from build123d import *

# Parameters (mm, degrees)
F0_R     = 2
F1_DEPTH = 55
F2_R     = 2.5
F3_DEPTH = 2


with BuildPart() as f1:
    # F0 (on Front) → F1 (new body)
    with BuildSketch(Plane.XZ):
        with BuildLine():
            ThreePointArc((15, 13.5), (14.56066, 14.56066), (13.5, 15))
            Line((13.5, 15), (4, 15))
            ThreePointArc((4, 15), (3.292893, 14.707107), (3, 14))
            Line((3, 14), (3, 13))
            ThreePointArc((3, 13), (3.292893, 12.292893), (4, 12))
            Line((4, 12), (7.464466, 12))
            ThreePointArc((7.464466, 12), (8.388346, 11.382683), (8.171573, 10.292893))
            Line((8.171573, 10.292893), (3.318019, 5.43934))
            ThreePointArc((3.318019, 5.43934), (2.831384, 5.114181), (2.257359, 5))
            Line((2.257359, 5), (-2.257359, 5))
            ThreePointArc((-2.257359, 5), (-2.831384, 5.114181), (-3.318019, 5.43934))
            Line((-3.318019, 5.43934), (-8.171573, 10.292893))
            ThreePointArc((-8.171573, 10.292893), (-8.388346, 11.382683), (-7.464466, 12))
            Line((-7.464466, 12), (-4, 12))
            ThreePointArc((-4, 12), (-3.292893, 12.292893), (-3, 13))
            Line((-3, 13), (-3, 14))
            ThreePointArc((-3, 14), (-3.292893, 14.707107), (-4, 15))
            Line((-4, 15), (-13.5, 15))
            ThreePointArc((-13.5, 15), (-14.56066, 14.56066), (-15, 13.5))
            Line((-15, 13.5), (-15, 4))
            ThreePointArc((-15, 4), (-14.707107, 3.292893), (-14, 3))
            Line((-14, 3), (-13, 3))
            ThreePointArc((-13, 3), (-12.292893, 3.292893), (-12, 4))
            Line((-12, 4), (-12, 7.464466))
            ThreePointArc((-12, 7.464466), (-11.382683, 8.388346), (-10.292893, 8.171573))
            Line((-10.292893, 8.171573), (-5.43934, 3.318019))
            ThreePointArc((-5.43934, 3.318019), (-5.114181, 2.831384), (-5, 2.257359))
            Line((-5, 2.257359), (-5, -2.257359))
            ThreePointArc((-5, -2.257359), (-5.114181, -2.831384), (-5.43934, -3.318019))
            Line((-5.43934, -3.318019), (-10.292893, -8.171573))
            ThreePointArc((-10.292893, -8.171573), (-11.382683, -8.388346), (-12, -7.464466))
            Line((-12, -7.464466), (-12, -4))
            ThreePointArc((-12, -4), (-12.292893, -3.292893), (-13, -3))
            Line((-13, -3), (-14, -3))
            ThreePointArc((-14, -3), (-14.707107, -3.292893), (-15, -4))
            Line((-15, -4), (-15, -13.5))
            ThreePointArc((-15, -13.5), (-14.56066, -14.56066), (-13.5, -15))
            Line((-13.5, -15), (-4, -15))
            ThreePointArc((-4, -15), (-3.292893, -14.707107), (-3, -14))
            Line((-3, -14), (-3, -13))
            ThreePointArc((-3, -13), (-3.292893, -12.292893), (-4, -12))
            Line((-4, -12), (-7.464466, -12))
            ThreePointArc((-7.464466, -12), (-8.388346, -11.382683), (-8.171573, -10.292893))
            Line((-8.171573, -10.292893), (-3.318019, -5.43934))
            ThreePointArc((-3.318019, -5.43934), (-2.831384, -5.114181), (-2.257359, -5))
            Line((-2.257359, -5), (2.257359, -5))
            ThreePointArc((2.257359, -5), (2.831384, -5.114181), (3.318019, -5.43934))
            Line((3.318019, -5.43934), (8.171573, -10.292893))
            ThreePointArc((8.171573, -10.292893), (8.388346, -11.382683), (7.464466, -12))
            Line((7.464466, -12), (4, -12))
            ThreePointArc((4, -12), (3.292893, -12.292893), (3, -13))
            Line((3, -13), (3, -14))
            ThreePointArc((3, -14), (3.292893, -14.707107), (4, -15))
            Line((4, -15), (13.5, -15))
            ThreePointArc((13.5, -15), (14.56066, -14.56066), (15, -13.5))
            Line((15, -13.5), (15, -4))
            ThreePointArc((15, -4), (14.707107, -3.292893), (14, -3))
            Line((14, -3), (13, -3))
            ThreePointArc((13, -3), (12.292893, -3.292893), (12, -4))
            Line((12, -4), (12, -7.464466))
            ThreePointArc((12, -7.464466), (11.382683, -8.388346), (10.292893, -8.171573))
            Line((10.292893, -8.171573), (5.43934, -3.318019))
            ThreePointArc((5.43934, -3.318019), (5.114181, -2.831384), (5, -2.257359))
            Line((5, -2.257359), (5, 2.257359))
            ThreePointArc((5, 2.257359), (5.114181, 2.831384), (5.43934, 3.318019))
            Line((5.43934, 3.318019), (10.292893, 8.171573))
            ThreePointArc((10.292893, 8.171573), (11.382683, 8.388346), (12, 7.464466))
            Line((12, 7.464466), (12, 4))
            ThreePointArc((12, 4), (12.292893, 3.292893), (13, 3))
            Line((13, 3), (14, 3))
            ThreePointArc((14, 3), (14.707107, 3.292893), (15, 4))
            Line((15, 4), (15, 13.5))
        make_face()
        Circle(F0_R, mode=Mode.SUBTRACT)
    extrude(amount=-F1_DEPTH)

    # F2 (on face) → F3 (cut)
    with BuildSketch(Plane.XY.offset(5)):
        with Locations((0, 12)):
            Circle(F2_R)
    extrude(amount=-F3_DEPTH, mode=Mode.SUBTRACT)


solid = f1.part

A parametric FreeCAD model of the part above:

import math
import FreeCAD as App
import Part
import Sketcher
Q = App.Units.Quantity

doc = App.newDocument("Part")
body = doc.addObject("PartDesign::Body", "Body")

# Sketch on XZ plane
sketch1 = body.newObject("Sketcher::SketchObject", "Sketch")
sketch1.AttachmentSupport = (doc.getObject("XZ_Plane"), [""])
sketch1.MapMode = "FlatFace"
sketch1.addGeometry(Part.ArcOfCircle(Part.Circle(App.Vector(13.5, 13.5, 0), App.Vector(0, 0, 1), 1.5), math.radians(0), math.radians(90)), False)
sketch1.addGeometry(Part.LineSegment(App.Vector(13.5, 15, 0), App.Vector(4, 15, 0)), False)
sketch1.addGeometry(Part.ArcOfCircle(Part.Circle(App.Vector(4, 14, 0), App.Vector(0, 0, 1), 1), math.radians(90), math.radians(180)), False)
sketch1.addGeometry(Part.LineSegment(App.Vector(3, 14, 0), App.Vector(3, 13, 0)), False)
sketch1.addGeometry(Part.ArcOfCircle(Part.Circle(App.Vector(4, 13, 0), App.Vector(0, 0, 1), 1), math.radians(180), math.radians(270)), False)
sketch1.addGeometry(Part.LineSegment(App.Vector(4, 12, 0), App.Vector(7.5, 12, 0)), False)
sketch1.addGeometry(Part.ArcOfCircle(Part.Circle(App.Vector(7.5, 11, 0), App.Vector(0, 0, 1), 1), math.radians(-45), math.radians(90)), False)
sketch1.addGeometry(Part.LineSegment(App.Vector(8.2, 10.3, 0), App.Vector(3.3, 5.4, 0)), False)
sketch1.addGeometry(Part.ArcOfCircle(Part.Circle(App.Vector(2.3, 6.5, 0), App.Vector(0, 0, 1), 1.5), math.radians(-90), math.radians(-45)), False)
sketch1.addGeometry(Part.LineSegment(App.Vector(2.3, 5, 0), App.Vector(-2.3, 5, 0)), False)
sketch1.addGeometry(Part.ArcOfCircle(Part.Circle(App.Vector(-2.3, 6.5, 0), App.Vector(0, 0, 1), 1.5), math.radians(-135), math.radians(-90)), False)
sketch1.addGeometry(Part.LineSegment(App.Vector(-3.3, 5.4, 0), App.Vector(-8.2, 10.3, 0)), False)
sketch1.addGeometry(Part.ArcOfCircle(Part.Circle(App.Vector(-7.5, 11, 0), App.Vector(0, 0, 1), 1), math.radians(90), math.radians(225)), False)
sketch1.addGeometry(Part.LineSegment(App.Vector(-7.5, 12, 0), App.Vector(-4, 12, 0)), False)
sketch1.addGeometry(Part.ArcOfCircle(Part.Circle(App.Vector(-4, 13, 0), App.Vector(0, 0, 1), 1), math.radians(-90), math.radians(0)), False)
sketch1.addGeometry(Part.LineSegment(App.Vector(-3, 13, 0), App.Vector(-3, 14, 0)), False)
sketch1.addGeometry(Part.ArcOfCircle(Part.Circle(App.Vector(-4, 14, 0), App.Vector(0, 0, 1), 1), math.radians(0), math.radians(90)), False)
sketch1.addGeometry(Part.LineSegment(App.Vector(-4, 15, 0), App.Vector(-13.5, 15, 0)), False)
sketch1.addGeometry(Part.ArcOfCircle(Part.Circle(App.Vector(-13.5, 13.5, 0), App.Vector(0, 0, 1), 1.5), math.radians(90), math.radians(180)), False)
sketch1.addGeometry(Part.LineSegment(App.Vector(-15, 13.5, 0), App.Vector(-15, 4, 0)), False)
sketch1.addGeometry(Part.ArcOfCircle(Part.Circle(App.Vector(-14, 4, 0), App.Vector(0, 0, 1), 1), math.radians(180), math.radians(270)), False)
sketch1.addGeometry(Part.LineSegment(App.Vector(-14, 3, 0), App.Vector(-13, 3, 0)), False)
sketch1.addGeometry(Part.ArcOfCircle(Part.Circle(App.Vector(-13, 4, 0), App.Vector(0, 0, 1), 1), math.radians(-90), math.radians(0)), False)
sketch1.addGeometry(Part.LineSegment(App.Vector(-12, 4, 0), App.Vector(-12, 7.5, 0)), False)
sketch1.addGeometry(Part.ArcOfCircle(Part.Circle(App.Vector(-11, 7.5, 0), App.Vector(0, 0, 1), 1), math.radians(45), math.radians(180)), False)
sketch1.addGeometry(Part.LineSegment(App.Vector(-10.3, 8.2, 0), App.Vector(-5.4, 3.3, 0)), False)
sketch1.addGeometry(Part.ArcOfCircle(Part.Circle(App.Vector(-6.5, 2.3, 0), App.Vector(0, 0, 1), 1.5), math.radians(0), math.radians(45)), False)
sketch1.addGeometry(Part.LineSegment(App.Vector(-5, 2.3, 0), App.Vector(-5, -2.3, 0)), False)
sketch1.addGeometry(Part.ArcOfCircle(Part.Circle(App.Vector(-6.5, -2.3, 0), App.Vector(0, 0, 1), 1.5), math.radians(-45), math.radians(0)), False)
sketch1.addGeometry(Part.LineSegment(App.Vector(-5.4, -3.3, 0), App.Vector(-10.3, -8.2, 0)), False)
sketch1.addGeometry(Part.ArcOfCircle(Part.Circle(App.Vector(-11, -7.5, 0), App.Vector(0, 0, 1), 1), math.radians(180), math.radians(315)), False)
sketch1.addGeometry(Part.LineSegment(App.Vector(-12, -7.5, 0), App.Vector(-12, -4, 0)), False)
sketch1.addGeometry(Part.ArcOfCircle(Part.Circle(App.Vector(-13, -4, 0), App.Vector(0, 0, 1), 1), math.radians(0), math.radians(90)), False)
sketch1.addGeometry(Part.LineSegment(App.Vector(-13, -3, 0), App.Vector(-14, -3, 0)), False)
sketch1.addGeometry(Part.ArcOfCircle(Part.Circle(App.Vector(-14, -4, 0), App.Vector(0, 0, 1), 1), math.radians(90), math.radians(180)), False)
sketch1.addGeometry(Part.LineSegment(App.Vector(-15, -4, 0), App.Vector(-15, -13.5, 0)), False)
sketch1.addGeometry(Part.ArcOfCircle(Part.Circle(App.Vector(-13.5, -13.5, 0), App.Vector(0, 0, 1), 1.5), math.radians(-180), math.radians(-90)), False)
sketch1.addGeometry(Part.LineSegment(App.Vector(-13.5, -15, 0), App.Vector(-4, -15, 0)), False)
sketch1.addGeometry(Part.ArcOfCircle(Part.Circle(App.Vector(-4, -14, 0), App.Vector(0, 0, 1), 1), math.radians(-90), math.radians(0)), False)
sketch1.addGeometry(Part.LineSegment(App.Vector(-3, -14, 0), App.Vector(-3, -13, 0)), False)
sketch1.addGeometry(Part.ArcOfCircle(Part.Circle(App.Vector(-4, -13, 0), App.Vector(0, 0, 1), 1), math.radians(0), math.radians(90)), False)
sketch1.addGeometry(Part.LineSegment(App.Vector(-4, -12, 0), App.Vector(-7.5, -12, 0)), False)
sketch1.addGeometry(Part.ArcOfCircle(Part.Circle(App.Vector(-7.5, -11, 0), App.Vector(0, 0, 1), 1), math.radians(135), math.radians(270)), False)
sketch1.addGeometry(Part.LineSegment(App.Vector(-8.2, -10.3, 0), App.Vector(-3.3, -5.4, 0)), False)
sketch1.addGeometry(Part.ArcOfCircle(Part.Circle(App.Vector(-2.3, -6.5, 0), App.Vector(0, 0, 1), 1.5), math.radians(90), math.radians(135)), False)
sketch1.addGeometry(Part.LineSegment(App.Vector(-2.3, -5, 0), App.Vector(2.3, -5, 0)), False)
sketch1.addGeometry(Part.ArcOfCircle(Part.Circle(App.Vector(2.3, -6.5, 0), App.Vector(0, 0, 1), 1.5), math.radians(45), math.radians(90)), False)
sketch1.addGeometry(Part.LineSegment(App.Vector(3.3, -5.4, 0), App.Vector(8.2, -10.3, 0)), False)
sketch1.addGeometry(Part.ArcOfCircle(Part.Circle(App.Vector(7.5, -11, 0), App.Vector(0, 0, 1), 1), math.radians(-90), math.radians(45)), False)
sketch1.addGeometry(Part.LineSegment(App.Vector(7.5, -12, 0), App.Vector(4, -12, 0)), False)
sketch1.addGeometry(Part.ArcOfCircle(Part.Circle(App.Vector(4, -13, 0), App.Vector(0, 0, 1), 1), math.radians(90), math.radians(180)), False)
sketch1.addGeometry(Part.LineSegment(App.Vector(3, -13, 0), App.Vector(3, -14, 0)), False)
sketch1.addGeometry(Part.ArcOfCircle(Part.Circle(App.Vector(4, -14, 0), App.Vector(0, 0, 1), 1), math.radians(180), math.radians(270)), False)
sketch1.addGeometry(Part.LineSegment(App.Vector(4, -15, 0), App.Vector(13.5, -15, 0)), False)
sketch1.addGeometry(Part.ArcOfCircle(Part.Circle(App.Vector(13.5, -13.5, 0), App.Vector(0, 0, 1), 1.5), math.radians(-90), math.radians(0)), False)
sketch1.addGeometry(Part.LineSegment(App.Vector(15, -13.5, 0), App.Vector(15, -4, 0)), False)
sketch1.addGeometry(Part.ArcOfCircle(Part.Circle(App.Vector(14, -4, 0), App.Vector(0, 0, 1), 1), math.radians(0), math.radians(90)), False)
sketch1.addGeometry(Part.LineSegment(App.Vector(14, -3, 0), App.Vector(13, -3, 0)), False)
sketch1.addGeometry(Part.ArcOfCircle(Part.Circle(App.Vector(13, -4, 0), App.Vector(0, 0, 1), 1), math.radians(90), math.radians(180)), False)
sketch1.addGeometry(Part.LineSegment(App.Vector(12, -4, 0), App.Vector(12, -7.5, 0)), False)
sketch1.addGeometry(Part.ArcOfCircle(Part.Circle(App.Vector(11, -7.5, 0), App.Vector(0, 0, 1), 1), math.radians(-135), math.radians(0)), False)
sketch1.addGeometry(Part.LineSegment(App.Vector(10.3, -8.2, 0), App.Vector(5.4, -3.3, 0)), False)
sketch1.addGeometry(Part.ArcOfCircle(Part.Circle(App.Vector(6.5, -2.3, 0), App.Vector(0, 0, 1), 1.5), math.radians(-180), math.radians(-135)), False)
sketch1.addGeometry(Part.LineSegment(App.Vector(5, -2.3, 0), App.Vector(5, 2.3, 0)), False)
sketch1.addGeometry(Part.ArcOfCircle(Part.Circle(App.Vector(6.5, 2.3, 0), App.Vector(0, 0, 1), 1.5), math.radians(135), math.radians(180)), False)
sketch1.addGeometry(Part.LineSegment(App.Vector(5.4, 3.3, 0), App.Vector(10.3, 8.2, 0)), False)
sketch1.addGeometry(Part.ArcOfCircle(Part.Circle(App.Vector(11, 7.5, 0), App.Vector(0, 0, 1), 1), math.radians(0), math.radians(135)), False)
sketch1.addGeometry(Part.LineSegment(App.Vector(12, 7.5, 0), App.Vector(12, 4, 0)), False)
sketch1.addGeometry(Part.ArcOfCircle(Part.Circle(App.Vector(13, 4, 0), App.Vector(0, 0, 1), 1), math.radians(180), math.radians(270)), False)
sketch1.addGeometry(Part.LineSegment(App.Vector(13, 3, 0), App.Vector(14, 3, 0)), False)
sketch1.addGeometry(Part.ArcOfCircle(Part.Circle(App.Vector(14, 4, 0), App.Vector(0, 0, 1), 1), math.radians(-90), math.radians(0)), False)
sketch1.addGeometry(Part.LineSegment(App.Vector(15, 4, 0), App.Vector(15, 13.5, 0)), False)
sketch1.addGeometry(Part.Circle(App.Vector(0, 0, 0), App.Vector(0, 0, 1), 2), False)
sketch1.addConstraint(Sketcher.Constraint("Tangent", 0, 2, 1, 1))
sketch1.addConstraint(Sketcher.Constraint("Tangent", 1, 2, 2, 1))
sketch1.addConstraint(Sketcher.Constraint("Tangent", 2, 2, 3, 1))
sketch1.addConstraint(Sketcher.Constraint("Tangent", 3, 2, 4, 1))
sketch1.addConstraint(Sketcher.Constraint("Tangent", 4, 2, 5, 1))
sketch1.addConstraint(Sketcher.Constraint("Tangent", 5, 2, 6, 2))
sketch1.addConstraint(Sketcher.Constraint("Tangent", 6, 1, 7, 1))
sketch1.addConstraint(Sketcher.Constraint("Tangent", 7, 2, 8, 2))
sketch1.addConstraint(Sketcher.Constraint("Tangent", 8, 1, 9, 1))
sketch1.addConstraint(Sketcher.Constraint("Tangent", 9, 2, 10, 2))
sketch1.addConstraint(Sketcher.Constraint("Tangent", 10, 1, 11, 1))
sketch1.addConstraint(Sketcher.Constraint("Tangent", 11, 2, 12, 2))
sketch1.addConstraint(Sketcher.Constraint("Tangent", 12, 1, 13, 1))
sketch1.addConstraint(Sketcher.Constraint("Tangent", 13, 2, 14, 1))
sketch1.addConstraint(Sketcher.Constraint("Tangent", 14, 2, 15, 1))
sketch1.addConstraint(Sketcher.Constraint("Tangent", 15, 2, 16, 1))
sketch1.addConstraint(Sketcher.Constraint("Tangent", 16, 2, 17, 1))
sketch1.addConstraint(Sketcher.Constraint("Tangent", 17, 2, 18, 1))
sketch1.addConstraint(Sketcher.Constraint("Tangent", 18, 2, 19, 1))
sketch1.addConstraint(Sketcher.Constraint("Tangent", 19, 2, 20, 1))
sketch1.addConstraint(Sketcher.Constraint("Tangent", 20, 2, 21, 1))
sketch1.addConstraint(Sketcher.Constraint("Tangent", 21, 2, 22, 1))
sketch1.addConstraint(Sketcher.Constraint("Tangent", 22, 2, 23, 1))
sketch1.addConstraint(Sketcher.Constraint("Tangent", 23, 2, 24, 2))
sketch1.addConstraint(Sketcher.Constraint("Tangent", 24, 1, 25, 1))
sketch1.addConstraint(Sketcher.Constraint("Tangent", 25, 2, 26, 2))
sketch1.addConstraint(Sketcher.Constraint("Tangent", 26, 1, 27, 1))
sketch1.addConstraint(Sketcher.Constraint("Tangent", 27, 2, 28, 2))
sketch1.addConstraint(Sketcher.Constraint("Tangent", 28, 1, 29, 1))
sketch1.addConstraint(Sketcher.Constraint("Tangent", 29, 2, 30, 2))
sketch1.addConstraint(Sketcher.Constraint("Tangent", 30, 1, 31, 1))
sketch1.addConstraint(Sketcher.Constraint("Tangent", 31, 2, 32, 1))
sketch1.addConstraint(Sketcher.Constraint("Tangent", 32, 2, 33, 1))
sketch1.addConstraint(Sketcher.Constraint("Tangent", 33, 2, 34, 1))
sketch1.addConstraint(Sketcher.Constraint("Tangent", 34, 2, 35, 1))
sketch1.addConstraint(Sketcher.Constraint("Tangent", 35, 2, 36, 1))
sketch1.addConstraint(Sketcher.Constraint("Tangent", 36, 2, 37, 1))
sketch1.addConstraint(Sketcher.Constraint("Tangent", 37, 2, 38, 1))
sketch1.addConstraint(Sketcher.Constraint("Tangent", 38, 2, 39, 1))
sketch1.addConstraint(Sketcher.Constraint("Tangent", 39, 2, 40, 1))
sketch1.addConstraint(Sketcher.Constraint("Tangent", 40, 2, 41, 1))
sketch1.addConstraint(Sketcher.Constraint("Tangent", 41, 2, 42, 2))
sketch1.addConstraint(Sketcher.Constraint("Tangent", 42, 1, 43, 1))
sketch1.addConstraint(Sketcher.Constraint("Tangent", 43, 2, 44, 2))
sketch1.addConstraint(Sketcher.Constraint("Tangent", 44, 1, 45, 1))
sketch1.addConstraint(Sketcher.Constraint("Tangent", 45, 2, 46, 2))
sketch1.addConstraint(Sketcher.Constraint("Tangent", 46, 1, 47, 1))
sketch1.addConstraint(Sketcher.Constraint("Tangent", 47, 2, 48, 2))
sketch1.addConstraint(Sketcher.Constraint("Tangent", 48, 1, 49, 1))
sketch1.addConstraint(Sketcher.Constraint("Tangent", 49, 2, 50, 1))
sketch1.addConstraint(Sketcher.Constraint("Tangent", 50, 2, 51, 1))
sketch1.addConstraint(Sketcher.Constraint("Tangent", 51, 2, 52, 1))
sketch1.addConstraint(Sketcher.Constraint("Tangent", 52, 2, 53, 1))
sketch1.addConstraint(Sketcher.Constraint("Tangent", 53, 2, 54, 1))
sketch1.addConstraint(Sketcher.Constraint("Tangent", 54, 2, 55, 1))
sketch1.addConstraint(Sketcher.Constraint("Tangent", 55, 2, 56, 1))
sketch1.addConstraint(Sketcher.Constraint("Tangent", 56, 2, 57, 1))
sketch1.addConstraint(Sketcher.Constraint("Tangent", 57, 2, 58, 1))
sketch1.addConstraint(Sketcher.Constraint("Tangent", 58, 2, 59, 1))
sketch1.addConstraint(Sketcher.Constraint("Tangent", 59, 2, 60, 2))
sketch1.addConstraint(Sketcher.Constraint("Tangent", 60, 1, 61, 1))
sketch1.addConstraint(Sketcher.Constraint("Tangent", 61, 2, 62, 2))
sketch1.addConstraint(Sketcher.Constraint("Tangent", 62, 1, 63, 1))
sketch1.addConstraint(Sketcher.Constraint("Tangent", 63, 2, 64, 2))
sketch1.addConstraint(Sketcher.Constraint("Tangent", 64, 1, 65, 1))
sketch1.addConstraint(Sketcher.Constraint("Tangent", 65, 2, 66, 2))
sketch1.addConstraint(Sketcher.Constraint("Tangent", 66, 1, 67, 1))
sketch1.addConstraint(Sketcher.Constraint("Tangent", 67, 2, 68, 1))
sketch1.addConstraint(Sketcher.Constraint("Tangent", 68, 2, 69, 1))
sketch1.addConstraint(Sketcher.Constraint("Tangent", 69, 2, 70, 1))
sketch1.addConstraint(Sketcher.Constraint("Tangent", 70, 2, 71, 1))
sketch1.addConstraint(Sketcher.Constraint("Tangent", 71, 2, 0, 1))
sketch1.addConstraint(Sketcher.Constraint("Horizontal", 1))
sketch1.addConstraint(Sketcher.Constraint("Vertical", 3))
sketch1.addConstraint(Sketcher.Constraint("Horizontal", 5))
sketch1.addConstraint(Sketcher.Constraint("Horizontal", 9))
sketch1.addConstraint(Sketcher.Constraint("Horizontal", 13))
sketch1.addConstraint(Sketcher.Constraint("Vertical", 15))
sketch1.addConstraint(Sketcher.Constraint("Horizontal", 17))
sketch1.addConstraint(Sketcher.Constraint("Vertical", 19))
sketch1.addConstraint(Sketcher.Constraint("Horizontal", 21))
sketch1.addConstraint(Sketcher.Constraint("Vertical", 23))
sketch1.addConstraint(Sketcher.Constraint("Vertical", 27))
sketch1.addConstraint(Sketcher.Constraint("Vertical", 31))
sketch1.addConstraint(Sketcher.Constraint("Horizontal", 33))
sketch1.addConstraint(Sketcher.Constraint("Vertical", 35))
sketch1.addConstraint(Sketcher.Constraint("Horizontal", 37))
sketch1.addConstraint(Sketcher.Constraint("Vertical", 39))
sketch1.addConstraint(Sketcher.Constraint("Horizontal", 41))
sketch1.addConstraint(Sketcher.Constraint("Horizontal", 45))
sketch1.addConstraint(Sketcher.Constraint("Horizontal", 49))
sketch1.addConstraint(Sketcher.Constraint("Vertical", 51))
sketch1.addConstraint(Sketcher.Constraint("Horizontal", 53))
sketch1.addConstraint(Sketcher.Constraint("Vertical", 55))
sketch1.addConstraint(Sketcher.Constraint("Horizontal", 57))
sketch1.addConstraint(Sketcher.Constraint("Vertical", 59))
sketch1.addConstraint(Sketcher.Constraint("Vertical", 63))
sketch1.addConstraint(Sketcher.Constraint("Vertical", 67))
sketch1.addConstraint(Sketcher.Constraint("Horizontal", 69))
sketch1.addConstraint(Sketcher.Constraint("Vertical", 71))
sketch1.addConstraint(Sketcher.Constraint("Coincident", 72, 3, -1, 1))
sketch1.addConstraint(Sketcher.Constraint("Equal", 2, 4))
sketch1.addConstraint(Sketcher.Constraint("Equal", 4, 6))
sketch1.addConstraint(Sketcher.Constraint("Equal", 0, 8))
sketch1.addConstraint(Sketcher.Constraint("Equal", 8, 10))
sketch1.addConstraint(Sketcher.Constraint("Equal", 6, 12))
sketch1.addConstraint(Sketcher.Constraint("Equal", 12, 14))
sketch1.addConstraint(Sketcher.Constraint("Equal", 14, 16))
sketch1.addConstraint(Sketcher.Constraint("Equal", 10, 18))
sketch1.addConstraint(Sketcher.Constraint("Equal", 16, 20))
sketch1.addConstraint(Sketcher.Constraint("Equal", 20, 22))
sketch1.addConstraint(Sketcher.Constraint("Equal", 22, 24))
sketch1.addConstraint(Sketcher.Constraint("Equal", 18, 26))
sketch1.addConstraint(Sketcher.Constraint("Equal", 26, 28))
sketch1.addConstraint(Sketcher.Constraint("Equal", 24, 30))
sketch1.addConstraint(Sketcher.Constraint("Equal", 30, 32))
sketch1.addConstraint(Sketcher.Constraint("Equal", 32, 34))
sketch1.addConstraint(Sketcher.Constraint("Equal", 28, 36))
sketch1.addConstraint(Sketcher.Constraint("Equal", 34, 38))
sketch1.addConstraint(Sketcher.Constraint("Equal", 38, 40))
sketch1.addConstraint(Sketcher.Constraint("Equal", 40, 42))
sketch1.addConstraint(Sketcher.Constraint("Equal", 36, 44))
sketch1.addConstraint(Sketcher.Constraint("Equal", 44, 46))
sketch1.addConstraint(Sketcher.Constraint("Equal", 42, 48))
sketch1.addConstraint(Sketcher.Constraint("Equal", 48, 50))
sketch1.addConstraint(Sketcher.Constraint("Equal", 50, 52))
sketch1.addConstraint(Sketcher.Constraint("Equal", 46, 54))
sketch1.addConstraint(Sketcher.Constraint("Equal", 52, 56))
sketch1.addConstraint(Sketcher.Constraint("Equal", 56, 58))
sketch1.addConstraint(Sketcher.Constraint("Equal", 58, 60))
sketch1.addConstraint(Sketcher.Constraint("Equal", 54, 62))
sketch1.addConstraint(Sketcher.Constraint("Equal", 62, 64))
sketch1.addConstraint(Sketcher.Constraint("Equal", 60, 66))
sketch1.addConstraint(Sketcher.Constraint("Equal", 66, 68))
sketch1.addConstraint(Sketcher.Constraint("Equal", 68, 70))
sketch1.addConstraint(Sketcher.Constraint("Symmetric", 0, 3, 36, 3, -1, 1))
sketch1.addConstraint(Sketcher.Constraint("Symmetric", 4, 3, 40, 3, -1, 1))
sketch1.addConstraint(Sketcher.Constraint("Symmetric", 8, 3, 44, 3, -1, 1))
sketch1.addConstraint(Sketcher.Constraint("Symmetric", 12, 3, 48, 3, -1, 1))
sketch1.addConstraint(Sketcher.Constraint("Symmetric", 16, 3, 52, 3, -1, 1))
sketch1.addConstraint(Sketcher.Constraint("Symmetric", 20, 3, 56, 3, -1, 1))
sketch1.addConstraint(Sketcher.Constraint("Symmetric", 24, 3, 60, 3, -1, 1))
sketch1.addConstraint(Sketcher.Constraint("Symmetric", 26, 3, 62, 3, -1, 1))
sketch1.addConstraint(Sketcher.Constraint("Symmetric", 30, 3, 66, 3, -1, 1))
sketch1.addConstraint(Sketcher.Constraint("Symmetric", 6, 3, 12, 3, -2))
sketch1.addConstraint(Sketcher.Constraint("Symmetric", 2, 3, 16, 3, -2))
sketch1.addConstraint(Sketcher.Constraint("Symmetric", 34, 3, 56, 3, -2))
sketch1.addConstraint(Sketcher.Constraint("Symmetric", 30, 3, 60, 3, -2))
sketch1.addConstraint(Sketcher.Constraint("Symmetric", 43, 2, 46, 1, -2))
sketch1.addConstraint(Sketcher.Constraint("Perpendicular", 7, 11))
sketch1.addConstraint(Sketcher.Constraint("Parallel", 11, 25))
sketch1.addConstraint(Sketcher.Constraint("Perpendicular", 25, 29))
sketch1.addConstraint(Sketcher.Constraint("Perpendicular", 43, 47))
sketch1.addConstraint(Sketcher.Constraint("Perpendicular", 61, 65))
sketch1.addConstraint(Sketcher.Constraint("Horizontal", 22, 3, 68, 3))
sketch1.addConstraint(Sketcher.Constraint("Equal", 69, 3))
sketch1.addConstraint(Sketcher.Constraint("Equal", 53, 19))
sketch1.addConstraint(Sketcher.Constraint("Equal", 49, 23))
sketch1.addConstraint(Sketcher.Constraint("Equal", 45, 27))
sketch1.addConstraint(Sketcher.Constraint("Equal", 11, 25))
sketch1.addConstraint(Sketcher.Constraint("Diameter", 72, Q("4 mm")))
sketch1.addConstraint(Sketcher.Constraint("Radius", 2, Q("0.999999 mm")))
sketch1.addConstraint(Sketcher.Constraint("Radius", 0, Q("1.500001 mm")))
sketch1.addConstraint(Sketcher.Constraint("DistanceX", 21, 1, 21, 2, Q("1 mm")))
sketch1.addConstraint(Sketcher.Constraint("DistanceX", 1, 2, 1, 1, Q("9.5 mm")))
sketch1.addConstraint(Sketcher.Constraint("DistanceX", -1, 1, 2, 3, Q("3.999999 mm")))
sketch1.addConstraint(Sketcher.Constraint("DistanceY", -1, 1, 8, 1, Q("5 mm")))
sketch1.addConstraint(Sketcher.Constraint("DistanceX", 9, 2, 9, 1, Q("4.514718 mm")))
pad1 = body.newObject("PartDesign::Pad", "Pad")
pad1.Profile = sketch1
pad1.Length = 55
pad1.Reversed = True

# Sketch on XY plane
sketch2 = body.newObject("Sketcher::SketchObject", "Sketch001")
sketch2.AttachmentSupport = (doc.getObject("XY_Plane"), [""])
sketch2.MapMode = "FlatFace"
sketch2.AttachmentOffset = App.Placement(App.Vector(0, 0, 5), App.Rotation())
sketch2.addGeometry(Part.Circle(App.Vector(0, 12, 0), App.Vector(0, 0, 1), 2.5), False)
sketch2.addConstraint(Sketcher.Constraint("PointOnObject", 0, 3, -2))
sketch2.addConstraint(Sketcher.Constraint("Diameter", 0, Q("5 mm")))
sketch2.addConstraint(Sketcher.Constraint("DistanceY", -1, 1, 0, 3, Q("12 mm")))
pocket1 = body.newObject("PartDesign::Pocket", "Pocket")
pocket1.Profile = sketch2
pocket1.Length = 2

doc.recompute()
